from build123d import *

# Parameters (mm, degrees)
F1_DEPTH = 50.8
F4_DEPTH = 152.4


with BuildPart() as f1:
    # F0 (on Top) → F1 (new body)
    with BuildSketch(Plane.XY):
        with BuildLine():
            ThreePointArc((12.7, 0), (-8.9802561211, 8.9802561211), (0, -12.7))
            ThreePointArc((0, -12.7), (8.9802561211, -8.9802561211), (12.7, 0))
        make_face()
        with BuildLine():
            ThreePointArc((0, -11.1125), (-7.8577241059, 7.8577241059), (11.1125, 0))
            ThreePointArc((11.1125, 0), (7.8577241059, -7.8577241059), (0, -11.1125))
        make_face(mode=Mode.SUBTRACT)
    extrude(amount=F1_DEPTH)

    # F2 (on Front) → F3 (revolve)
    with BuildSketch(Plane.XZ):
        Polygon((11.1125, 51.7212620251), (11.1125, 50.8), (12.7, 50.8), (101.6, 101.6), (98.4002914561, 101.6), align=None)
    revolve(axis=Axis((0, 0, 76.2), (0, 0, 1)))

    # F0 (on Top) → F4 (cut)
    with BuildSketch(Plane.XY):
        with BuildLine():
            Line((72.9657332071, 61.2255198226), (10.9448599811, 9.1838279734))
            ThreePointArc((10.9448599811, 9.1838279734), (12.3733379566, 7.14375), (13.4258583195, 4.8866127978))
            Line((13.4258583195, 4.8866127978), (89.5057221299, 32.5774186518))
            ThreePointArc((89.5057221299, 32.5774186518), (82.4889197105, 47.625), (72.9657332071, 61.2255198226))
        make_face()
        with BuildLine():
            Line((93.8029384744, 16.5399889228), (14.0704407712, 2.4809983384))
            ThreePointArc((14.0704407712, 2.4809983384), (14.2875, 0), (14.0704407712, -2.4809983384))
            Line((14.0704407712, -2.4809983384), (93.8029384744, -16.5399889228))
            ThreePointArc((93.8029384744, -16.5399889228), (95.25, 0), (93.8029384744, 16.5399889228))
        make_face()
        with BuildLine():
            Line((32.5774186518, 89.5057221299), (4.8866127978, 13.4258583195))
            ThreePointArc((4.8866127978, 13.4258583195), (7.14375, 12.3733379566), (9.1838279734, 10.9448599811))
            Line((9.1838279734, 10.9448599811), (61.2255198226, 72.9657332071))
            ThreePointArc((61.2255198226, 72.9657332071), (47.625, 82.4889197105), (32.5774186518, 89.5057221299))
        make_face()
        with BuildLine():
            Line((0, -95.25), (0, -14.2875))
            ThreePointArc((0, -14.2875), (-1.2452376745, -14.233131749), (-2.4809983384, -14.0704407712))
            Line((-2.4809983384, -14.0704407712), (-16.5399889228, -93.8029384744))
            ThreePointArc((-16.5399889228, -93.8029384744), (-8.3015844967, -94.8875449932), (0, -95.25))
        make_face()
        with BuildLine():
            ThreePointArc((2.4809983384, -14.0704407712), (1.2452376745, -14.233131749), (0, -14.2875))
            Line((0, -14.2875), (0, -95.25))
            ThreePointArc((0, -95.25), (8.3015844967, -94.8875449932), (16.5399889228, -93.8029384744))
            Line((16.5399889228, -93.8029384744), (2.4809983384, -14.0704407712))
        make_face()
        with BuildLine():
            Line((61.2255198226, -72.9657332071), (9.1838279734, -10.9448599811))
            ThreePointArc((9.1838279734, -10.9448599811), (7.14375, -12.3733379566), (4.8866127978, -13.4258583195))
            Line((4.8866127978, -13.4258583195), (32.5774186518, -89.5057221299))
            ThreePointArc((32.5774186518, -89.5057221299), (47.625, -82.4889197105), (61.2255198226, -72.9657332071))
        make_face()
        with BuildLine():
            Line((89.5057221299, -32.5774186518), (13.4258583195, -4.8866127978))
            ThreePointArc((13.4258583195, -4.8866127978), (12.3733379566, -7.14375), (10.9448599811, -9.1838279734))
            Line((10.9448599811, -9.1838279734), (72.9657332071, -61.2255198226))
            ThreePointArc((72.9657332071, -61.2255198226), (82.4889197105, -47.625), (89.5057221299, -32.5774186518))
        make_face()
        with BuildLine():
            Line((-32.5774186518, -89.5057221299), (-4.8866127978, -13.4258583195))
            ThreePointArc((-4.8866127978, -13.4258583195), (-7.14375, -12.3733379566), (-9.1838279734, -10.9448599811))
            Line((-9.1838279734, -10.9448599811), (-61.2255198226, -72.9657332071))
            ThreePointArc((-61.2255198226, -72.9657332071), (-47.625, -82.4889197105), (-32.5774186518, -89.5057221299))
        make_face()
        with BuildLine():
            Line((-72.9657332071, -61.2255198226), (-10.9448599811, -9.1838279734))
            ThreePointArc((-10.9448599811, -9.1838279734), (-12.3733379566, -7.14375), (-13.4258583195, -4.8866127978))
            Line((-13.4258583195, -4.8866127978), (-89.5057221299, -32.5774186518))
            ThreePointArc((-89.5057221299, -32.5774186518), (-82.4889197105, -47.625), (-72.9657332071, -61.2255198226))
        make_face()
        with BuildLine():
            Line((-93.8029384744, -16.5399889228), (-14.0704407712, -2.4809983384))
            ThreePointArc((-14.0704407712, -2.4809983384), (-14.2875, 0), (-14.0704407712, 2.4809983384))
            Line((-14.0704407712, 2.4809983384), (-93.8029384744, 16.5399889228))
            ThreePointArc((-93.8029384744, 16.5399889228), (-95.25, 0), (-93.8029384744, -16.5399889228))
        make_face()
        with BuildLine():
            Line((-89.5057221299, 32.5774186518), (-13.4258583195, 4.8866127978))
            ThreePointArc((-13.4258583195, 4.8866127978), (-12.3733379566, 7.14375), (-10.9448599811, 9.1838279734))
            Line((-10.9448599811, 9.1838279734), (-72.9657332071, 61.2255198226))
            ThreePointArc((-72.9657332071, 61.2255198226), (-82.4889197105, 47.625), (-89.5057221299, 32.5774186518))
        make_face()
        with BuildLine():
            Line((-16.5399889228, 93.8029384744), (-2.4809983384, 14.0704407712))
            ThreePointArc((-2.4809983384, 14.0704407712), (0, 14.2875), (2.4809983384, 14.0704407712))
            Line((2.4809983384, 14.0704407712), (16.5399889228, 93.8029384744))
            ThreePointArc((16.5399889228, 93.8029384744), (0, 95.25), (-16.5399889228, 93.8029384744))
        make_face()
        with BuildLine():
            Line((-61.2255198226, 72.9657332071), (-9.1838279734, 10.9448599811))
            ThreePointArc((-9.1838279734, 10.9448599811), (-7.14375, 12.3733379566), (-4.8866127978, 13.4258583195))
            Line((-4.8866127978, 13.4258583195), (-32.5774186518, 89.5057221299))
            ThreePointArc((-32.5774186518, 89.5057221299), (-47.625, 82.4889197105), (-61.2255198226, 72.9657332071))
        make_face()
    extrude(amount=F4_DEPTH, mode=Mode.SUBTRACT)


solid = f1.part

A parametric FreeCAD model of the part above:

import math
import FreeCAD as App
import Part
import Sketcher
from FreeCAD import Vector
Q = App.Units.Quantity

doc = App.newDocument("Part")
body = doc.addObject("PartDesign::Body", "Body")

sketch1 = body.newObject("Sketcher::SketchObject", "Sketch")
sketch1.AttachmentSupport = (doc.getObject("XY_Plane"), [""])
sketch1.MapMode = "FlatFace"
sketch1.addGeometry([
    Part.ArcOfCircle(Part.Circle(Vector(0, 0, 0), Vector(0, 0, 1), 12.7), math.radians(0), math.radians(270)),
    Part.ArcOfCircle(Part.Circle(Vector(0, 0, 0), Vector(0, 0, 1), 12.7), math.radians(-90), math.radians(0)),
    Part.ArcOfCircle(Part.Circle(Vector(0, 0, 0), Vector(0, 0, 1), 11.1125), math.radians(-90), math.radians(0)),
    Part.ArcOfCircle(Part.Circle(Vector(0, 0, 0), Vector(0, 0, 1), 11.1125), math.radians(0), math.radians(270)),
], False)
sketch1.addConstraint([
    Sketcher.Constraint("Tangent", 0, 1, 1, 2),
    Sketcher.Constraint("Coincident", 1, 1, 0, 2),
    Sketcher.Constraint("Tangent", 2, 1, 3, 2),
    Sketcher.Constraint("Coincident", 3, 1, 2, 2),
    Sketcher.Constraint("Coincident", 0, 3, -1, 1),
    Sketcher.Constraint("Coincident", 2, 3, -1, 1),
    Sketcher.Constraint("PointOnObject", 0, 1, -1),
    Sketcher.Constraint("PointOnObject", 1, 1, -2),
    Sketcher.Constraint("PointOnObject", 2, 1, -2),
    Sketcher.Constraint("PointOnObject", 3, 1, -1),
    Sketcher.Constraint("Radius", 0, Q("0.5 in")),
    Sketcher.Constraint("Radius", 2, Q("0.4375 in")),
])
pad1 = body.newObject("PartDesign::Pad", "Pad")
pad1.Profile = sketch1
pad1.Length = Q("2 in")

sketch2 = body.newObject("Sketcher::SketchObject", "Sketch001")
sketch2.AttachmentSupport = (doc.getObject("XZ_Plane"), [""])
sketch2.MapMode = "FlatFace"
sketch2.addGeometry([
    Part.LineSegment(Vector(11.1125, 51.721262, 0), Vector(11.1125, 50.8, 0)),
    Part.LineSegment(Vector(11.1125, 50.8, 0), Vector(12.7, 50.8, 0)),
    Part.LineSegment(Vector(12.7, 50.8, 0), Vector(101.6, 101.6, 0)),
    Part.LineSegment(Vector(101.6, 101.6, 0), Vector(98.400291, 101.6, 0)),
    Part.LineSegment(Vector(98.400291, 101.6, 0), Vector(11.1125, 51.721262, 0)),
], False)
sketch2.addConstraint([
    Sketcher.Constraint("Coincident", 0, 2, 1, 1),
    Sketcher.Constraint("Coincident", 1, 2, 2, 1),
    Sketcher.Constraint("Coincident", 2, 2, 3, 1),
    Sketcher.Constraint("Coincident", 3, 2, 4, 1),
    Sketcher.Constraint("Coincident", 4, 2, 0, 1),
    Sketcher.Constraint("Vertical", 0),
    Sketcher.Constraint("Horizontal", 1),
    Sketcher.Constraint("Horizontal", 3),
    Sketcher.Constraint("Parallel", 2, 4),
    Sketcher.Constraint("DistanceY", -1, 1, 0, 2, Q("2 in")),
    Sketcher.Constraint("DistanceX", -1, 1, 2, 2, Q("4 in")),
    Sketcher.Constraint("DistanceY", -1, 1, 2, 2, Q("4 in")),
    Sketcher.Constraint("DistanceX", -1, 1, 1, 2, Q("0.5 in")),
    Sketcher.Constraint("DistanceX", 1, 1, 1, 2, Q("0.0625 in")),
    Sketcher.Constraint("DistanceX", 3, 2, 3, 1, Q("3.199709 mm")),
])
revolution = body.newObject("PartDesign::Revolution", "Revolution")
revolution.Profile = sketch2
revolution.ReferenceAxis = (sketch2, ["V_Axis"])
revolution.Angle = 360

sketch3 = body.newObject("Sketcher::SketchObject", "Sketch002")
sketch3.AttachmentSupport = (doc.getObject("XY_Plane"), [""])
sketch3.MapMode = "FlatFace"
sketch3.addGeometry([
    Part.LineSegment(Vector(72.965733, 61.22552, 0), Vector(10.94486, 9.183828, 0)),
    Part.ArcOfCircle(Part.Circle(Vector(0, 0, 0), Vector(0, 0, 1), 14.2875), math.radians(20), math.radians(40)),
    Part.LineSegment(Vector(13.425858, 4.886613, 0), Vector(89.505722, 32.577419, 0)),
    Part.ArcOfCircle(Part.Circle(Vector(0, 0, 0), Vector(0, 0, 1), 95.25), math.radians(20), math.radians(40)),
    Part.LineSegment(Vector(93.802938, 16.539989, 0), Vector(14.070441, 2.480998, 0)),
    Part.ArcOfCircle(Part.Circle(Vector(0, 0, 0), Vector(0, 0, 1), 14.2875), math.radians(-10), math.radians(10)),
    Part.LineSegment(Vector(14.070441, -2.480998, 0), Vector(93.802938, -16.539989, 0)),
    Part.ArcOfCircle(Part.Circle(Vector(0, 0, 0), Vector(0, 0, 1), 95.25), math.radians(-10), math.radians(10)),
    Part.LineSegment(Vector(32.577419, 89.505722, 0), Vector(4.886613, 13.425858, 0)),
    Part.ArcOfCircle(Part.Circle(Vector(0, 0, 0), Vector(0, 0, 1), 14.2875), math.radians(50), math.radians(70)),
    Part.LineSegment(Vector(9.183828, 10.94486, 0), Vector(61.22552, 72.965733, 0)),
    Part.ArcOfCircle(Part.Circle(Vector(0, 0, 0), Vector(0, 0, 1), 95.25), math.radians(50), math.radians(70)),
    Part.ArcOfCircle(Part.Circle(Vector(0, 0, 0), Vector(0, 0, 1), 14.2875), math.radians(-100), math.radians(-90)),
    Part.LineSegment(Vector(-2.480998, -14.070441, 0), Vector(-16.539989, -93.802938, 0)),
    Part.ArcOfCircle(Part.Circle(Vector(0, 0, 0), Vector(0, 0, 1), 95.25), math.radians(-100), math.radians(-90)),
    Part.ArcOfCircle(Part.Circle(Vector(0, 0, 0), Vector(0, 0, 1), 95.25), math.radians(-90), math.radians(-80)),
    Part.LineSegment(Vector(16.539989, -93.802938, 0), Vector(2.480998, -14.070441, 0)),
    Part.ArcOfCircle(Part.Circle(Vector(0, 0, 0), Vector(0, 0, 1), 14.2875), math.radians(-90), math.radians(-80)),
    Part.LineSegment(Vector(61.22552, -72.965733, 0), Vector(9.183828, -10.94486, 0)),
    Part.ArcOfCircle(Part.Circle(Vector(0, 0, 0), Vector(0, 0, 1), 14.2875), math.radians(-70), math.radians(-50)),
    Part.LineSegment(Vector(4.886613, -13.425858, 0), Vector(32.577419, -89.505722, 0)),
    Part.ArcOfCircle(Part.Circle(Vector(0, 0, 0), Vector(0, 0, 1), 95.25), math.radians(-70), math.radians(-50)),
    Part.LineSegment(Vector(89.505722, -32.577419, 0), Vector(13.425858, -4.886613, 0)),
    Part.ArcOfCircle(Part.Circle(Vector(0, 0, 0), Vector(0, 0, 1), 14.2875), math.radians(-40), math.radians(-20)),
    Part.LineSegment(Vector(10.94486, -9.183828, 0), Vector(72.965733, -61.22552, 0)),
    Part.ArcOfCircle(Part.Circle(Vector(0, 0, 0), Vector(0, 0, 1), 95.25), math.radians(-40), math.radians(-20)),
    Part.LineSegment(Vector(-32.577419, -89.505722, 0), Vector(-4.886613, -13.425858, 0)),
    Part.ArcOfCircle(Part.Circle(Vector(0, 0, 0), Vector(0, 0, 1), 14.2875), math.radians(-130), math.radians(-110)),
    Part.LineSegment(Vector(-9.183828, -10.94486, 0), Vector(-61.22552, -72.965733, 0)),
    Part.ArcOfCircle(Part.Circle(Vector(0, 0, 0), Vector(0, 0, 1), 95.25), math.radians(-130), math.radians(-110)),
    Part.LineSegment(Vector(-72.965733, -61.22552, 0), Vector(-10.94486, -9.183828, 0)),
    Part.ArcOfCircle(Part.Circle(Vector(0, 0, 0), Vector(0, 0, 1), 14.2875), math.radians(-160), math.radians(-140)),
    Part.LineSegment(Vector(-13.425858, -4.886613, 0), Vector(-89.505722, -32.577419, 0)),
    Part.ArcOfCircle(Part.Circle(Vector(0, 0, 0), Vector(0, 0, 1), 95.25), math.radians(-160), math.radians(-140)),
    Part.LineSegment(Vector(-93.802938, -16.539989, 0), Vector(-14.070441, -2.480998, 0)),
    Part.ArcOfCircle(Part.Circle(Vector(0, 0, 0), Vector(0, 0, 1), 14.2875), math.radians(170), math.radians(190)),
    Part.LineSegment(Vector(-14.070441, 2.480998, 0), Vector(-93.802938, 16.539989, 0)),
    Part.ArcOfCircle(Part.Circle(Vector(0, 0, 0), Vector(0, 0, 1), 95.25), math.radians(170), math.radians(190)),
    Part.LineSegment(Vector(-89.505722, 32.577419, 0), Vector(-13.425858, 4.886613, 0)),
    Part.ArcOfCircle(Part.Circle(Vector(0, 0, 0), Vector(0, 0, 1), 14.2875), math.radians(140), math.radians(160)),
    Part.LineSegment(Vector(-10.94486, 9.183828, 0), Vector(-72.965733, 61.22552, 0)),
    Part.ArcOfCircle(Part.Circle(Vector(0, 0, 0), Vector(0, 0, 1), 95.25), math.radians(140), math.radians(160)),
    Part.LineSegment(Vector(-16.539989, 93.802938, 0), Vector(-2.480998, 14.070441, 0)),
    Part.ArcOfCircle(Part.Circle(Vector(0, 0, 0), Vector(0, 0, 1), 14.2875), math.radians(80), math.radians(100)),
    Part.LineSegment(Vector(2.480998, 14.070441, 0), Vector(16.539989, 93.802938, 0)),
    Part.ArcOfCircle(Part.Circle(Vector(0, 0, 0), Vector(0, 0, 1), 95.25), math.radians(80), math.radians(100)),
    Part.LineSegment(Vector(-61.22552, 72.965733, 0), Vector(-9.183828, 10.94486, 0)),
    Part.ArcOfCircle(Part.Circle(Vector(0, 0, 0), Vector(0, 0, 1), 14.2875), math.radians(110), math.radians(130)),
    Part.LineSegment(Vector(-4.886613, 13.425858, 0), Vector(-32.577419, 89.505722, 0)),
    Part.ArcOfCircle(Part.Circle(Vector(0, 0, 0), Vector(0, 0, 1), 95.25), math.radians(110), math.radians(130)),
], False)
sketch3.addConstraint([
    Sketcher.Constraint("Coincident", 0, 2, 1, 2),
    Sketcher.Constraint("Coincident", 1, 1, 2, 1),
    Sketcher.Constraint("Coincident", 2, 2, 3, 1),
    Sketcher.Constraint("Coincident", 3, 2, 0, 1),
    Sketcher.Constraint("Coincident", 4, 2, 5, 2),
    Sketcher.Constraint("Coincident", 5, 1, 6, 1),
    Sketcher.Constraint("Coincident", 6, 2, 7, 1),
    Sketcher.Constraint("Coincident", 7, 2, 4, 1),
    Sketcher.Constraint("Coincident", 8, 2, 9, 2),
    Sketcher.Constraint("Coincident", 9, 1, 10, 1),
    Sketcher.Constraint("Coincident", 10, 2, 11, 1),
    Sketcher.Constraint("Coincident", 11, 2, 8, 1),
    Sketcher.Constraint("Coincident", 12, 1, 13, 1),
    Sketcher.Constraint("Coincident", 13, 2, 14, 1),
    Sketcher.Constraint("Tangent", 14, 2, 15, 1),
    Sketcher.Constraint("Coincident", 15, 2, 16, 1),
    Sketcher.Constraint("Coincident", 16, 2, 17, 2),
    Sketcher.Constraint("Tangent", 17, 1, 12, 2),
    Sketcher.Constraint("Coincident", 18, 2, 19, 2),
    Sketcher.Constraint("Coincident", 19, 1, 20, 1),
    Sketcher.Constraint("Coincident", 20, 2, 21, 1),
    Sketcher.Constraint("Coincident", 21, 2, 18, 1),
    Sketcher.Constraint("Coincident", 22, 2, 23, 2),
    Sketcher.Constraint("Coincident", 23, 1, 24, 1),
    Sketcher.Constraint("Coincident", 24, 2, 25, 1),
    Sketcher.Constraint("Coincident", 25, 2, 22, 1),
    Sketcher.Constraint("Coincident", 26, 2, 27, 2),
    Sketcher.Constraint("Coincident", 27, 1, 28, 1),
    Sketcher.Constraint("Coincident", 28, 2, 29, 1),
    Sketcher.Constraint("Coincident", 29, 2, 26, 1),
    Sketcher.Constraint("Coincident", 30, 2, 31, 2),
    Sketcher.Constraint("Coincident", 31, 1, 32, 1),
    Sketcher.Constraint("Coincident", 32, 2, 33, 1),
    Sketcher.Constraint("Coincident", 33, 2, 30, 1),
    Sketcher.Constraint("Coincident", 34, 2, 35, 2),
    Sketcher.Constraint("Coincident", 35, 1, 36, 1),
    Sketcher.Constraint("Coincident", 36, 2, 37, 1),
    Sketcher.Constraint("Coincident", 37, 2, 34, 1),
    Sketcher.Constraint("Coincident", 38, 2, 39, 2),
    Sketcher.Constraint("Coincident", 39, 1, 40, 1),
    Sketcher.Constraint("Coincident", 40, 2, 41, 1),
    Sketcher.Constraint("Coincident", 41, 2, 38, 1),
    Sketcher.Constraint("Coincident", 42, 2, 43, 2),
    Sketcher.Constraint("Coincident", 43, 1, 44, 1),
    Sketcher.Constraint("Coincident", 44, 2, 45, 1),
    Sketcher.Constraint("Coincident", 45, 2, 42, 1),
    Sketcher.Constraint("Coincident", 46, 2, 47, 2),
    Sketcher.Constraint("Coincident", 47, 1, 48, 1),
    Sketcher.Constraint("Coincident", 48, 2, 49, 1),
    Sketcher.Constraint("Coincident", 49, 2, 46, 1),
    Sketcher.Constraint("Coincident", 1, 3, -1, 1),
    Sketcher.Constraint("Coincident", 3, 3, -1, 1),
    Sketcher.Constraint("Coincident", 5, 3, -1, 1),
    Sketcher.Constraint("Coincident", 7, 3, -1, 1),
    Sketcher.Constraint("Coincident", 9, 3, -1, 1),
    Sketcher.Constraint("Coincident", 11, 3, -1, 1),
    Sketcher.Constraint("Coincident", 12, 3, -1, 1),
    Sketcher.Constraint("Coincident", 14, 3, -1, 1),
    Sketcher.Constraint("Coincident", 19, 3, -1, 1),
    Sketcher.Constraint("Coincident", 21, 3, -1, 1),
    Sketcher.Constraint("Coincident", 23, 3, -1, 1),
    Sketcher.Constraint("Coincident", 25, 3, -1, 1),
    Sketcher.Constraint("Coincident", 27, 3, -1, 1),
    Sketcher.Constraint("Coincident", 29, 3, -1, 1),
    Sketcher.Constraint("Coincident", 31, 3, -1, 1),
    Sketcher.Constraint("Coincident", 33, 3, -1, 1),
    Sketcher.Constraint("Coincident", 35, 3, -1, 1),
    Sketcher.Constraint("Coincident", 37, 3, -1, 1),
    Sketcher.Constraint("Coincident", 39, 3, -1, 1),
    Sketcher.Constraint("Coincident", 41, 3, -1, 1),
    Sketcher.Constraint("Coincident", 43, 3, -1, 1),
    Sketcher.Constraint("Coincident", 45, 3, -1, 1),
    Sketcher.Constraint("Coincident", 47, 3, -1, 1),
    Sketcher.Constraint("Coincident", 49, 3, -1, 1),
    Sketcher.Constraint("Equal", 1, 5),
    Sketcher.Constraint("Equal", 3, 7),
    Sketcher.Constraint("Equal", 5, 9),
    Sketcher.Constraint("Equal", 7, 11),
    Sketcher.Constraint("Equal", 9, 12),
    Sketcher.Constraint("Equal", 11, 14),
    Sketcher.Constraint("Equal", 14, 15),
    Sketcher.Constraint("Equal", 12, 17),
    Sketcher.Constraint("Equal", 17, 19),
    Sketcher.Constraint("Equal", 15, 21),
    Sketcher.Constraint("Equal", 19, 23),
    Sketcher.Constraint("Equal", 21, 25),
    Sketcher.Constraint("Equal", 23, 27),
    Sketcher.Constraint("Equal", 25, 29),
    Sketcher.Constraint("Equal", 27, 31),
    Sketcher.Constraint("Equal", 29, 33),
    Sketcher.Constraint("Equal", 31, 35),
    Sketcher.Constraint("Equal", 33, 37),
    Sketcher.Constraint("Equal", 35, 39),
    Sketcher.Constraint("Equal", 37, 41),
    Sketcher.Constraint("Equal", 39, 43),
    Sketcher.Constraint("Equal", 41, 45),
    Sketcher.Constraint("Equal", 43, 47),
    Sketcher.Constraint("Equal", 45, 49),
    Sketcher.Constraint("PointOnObject", 14, 2, -2),
    Sketcher.Constraint("PointOnObject", 17, 1, -2),
    Sketcher.Constraint("Perpendicular", 6, 13),
    Sketcher.Constraint("Perpendicular", 4, 16),
    Sketcher.Constraint("Perpendicular", 0, 18),
    Sketcher.Constraint("Perpendicular", 2, 20),
    Sketcher.Constraint("Perpendicular", 8, 22),
    Sketcher.Constraint("Perpendicular", 10, 24),
    Sketcher.Constraint("Perpendicular", 22, 26),
    Sketcher.Constraint("Perpendicular", 24, 28),
    Sketcher.Constraint("Perpendicular", 18, 30),
    Sketcher.Constraint("Perpendicular", 20, 32),
    Sketcher.Constraint("Perpendicular", 16, 34),
    Sketcher.Constraint("Perpendicular", 13, 36),
    Sketcher.Constraint("Perpendicular", 26, 38),
    Sketcher.Constraint("Perpendicular", 28, 40),
    Sketcher.Constraint("Perpendicular", 34, 42),
    Sketcher.Constraint("Perpendicular", 36, 44),
    Sketcher.Constraint("Perpendicular", 30, 46),
    Sketcher.Constraint("Perpendicular", 32, 48),
    Sketcher.Constraint("Horizontal", 13, 2, 15, 2),
    Sketcher.Constraint("Horizontal", 12, 1, 16, 2),
    Sketcher.Constraint("Horizontal", 19, 1, 26, 2),
    Sketcher.Constraint("Horizontal", 18, 2, 27, 1),
    Sketcher.Constraint("Horizontal", 21, 2, 28, 2),
    Sketcher.Constraint("Horizontal", 20, 2, 29, 2),
    Sketcher.Constraint("Horizontal", 23, 1, 30, 2),
    Sketcher.Constraint("Horizontal", 22, 2, 31, 1),
    Sketcher.Constraint("Horizontal", 5, 1, 34, 2),
    Sketcher.Constraint("Horizontal", 4, 2, 35, 1),
    Sketcher.Constraint("Horizontal", 1, 1, 38, 2),
    Sketcher.Constraint("Horizontal", 0, 2, 39, 1),
    Sketcher.Constraint("Horizontal", 42, 2, 43, 1),
    Sketcher.Constraint("Horizontal", 9, 1, 46, 2),
    Sketcher.Constraint("Horizontal", 8, 2, 47, 1),
    Sketcher.Constraint("Vertical", 4, 2, 5, 1),
    Sketcher.Constraint("Vertical", 9, 1, 18, 2),
    Sketcher.Constraint("Vertical", 8, 2, 19, 1),
    Sketcher.Constraint("Vertical", 1, 1, 22, 2),
    Sketcher.Constraint("Vertical", 0, 2, 23, 1),
    Sketcher.Constraint("Vertical", 12, 1, 42, 2),
    Sketcher.Constraint("Radius", 3, Q("3.75 in")),
    Sketcher.Constraint("Angle", 0, Q("-140 deg")),
    Sketcher.Constraint("Angle", 2, Q("20 deg")),
    Sketcher.Constraint("Angle", 4, Q("-170 deg")),
    Sketcher.Constraint("Radius", 1, Q("0.5625 in")),
    Sketcher.Constraint("DistanceX", -1, 1, 0, 2, Q("0.4309 in")),
    Sketcher.Constraint("DistanceY", -1, 1, 9, 1, Q("0.4309 in")),
    Sketcher.Constraint("DistanceY", -1, 1, 4, 2, Q("2.480998 mm")),
    Sketcher.Constraint("DistanceX", 12, 1, -1, 1, Q("2.480998 mm")),
    Sketcher.Constraint("DistanceX", -1, 1, 1, 1, Q("13.425858 mm")),
    Sketcher.Constraint("DistanceY", -1, 1, 8, 2, Q("13.425858 mm")),
])
pocket1 = body.newObject("PartDesign::Pocket", "Pocket")
pocket1.Profile = sketch3
pocket1.Length = Q("6 in")
pocket1.Reversed = True

doc.recompute()
